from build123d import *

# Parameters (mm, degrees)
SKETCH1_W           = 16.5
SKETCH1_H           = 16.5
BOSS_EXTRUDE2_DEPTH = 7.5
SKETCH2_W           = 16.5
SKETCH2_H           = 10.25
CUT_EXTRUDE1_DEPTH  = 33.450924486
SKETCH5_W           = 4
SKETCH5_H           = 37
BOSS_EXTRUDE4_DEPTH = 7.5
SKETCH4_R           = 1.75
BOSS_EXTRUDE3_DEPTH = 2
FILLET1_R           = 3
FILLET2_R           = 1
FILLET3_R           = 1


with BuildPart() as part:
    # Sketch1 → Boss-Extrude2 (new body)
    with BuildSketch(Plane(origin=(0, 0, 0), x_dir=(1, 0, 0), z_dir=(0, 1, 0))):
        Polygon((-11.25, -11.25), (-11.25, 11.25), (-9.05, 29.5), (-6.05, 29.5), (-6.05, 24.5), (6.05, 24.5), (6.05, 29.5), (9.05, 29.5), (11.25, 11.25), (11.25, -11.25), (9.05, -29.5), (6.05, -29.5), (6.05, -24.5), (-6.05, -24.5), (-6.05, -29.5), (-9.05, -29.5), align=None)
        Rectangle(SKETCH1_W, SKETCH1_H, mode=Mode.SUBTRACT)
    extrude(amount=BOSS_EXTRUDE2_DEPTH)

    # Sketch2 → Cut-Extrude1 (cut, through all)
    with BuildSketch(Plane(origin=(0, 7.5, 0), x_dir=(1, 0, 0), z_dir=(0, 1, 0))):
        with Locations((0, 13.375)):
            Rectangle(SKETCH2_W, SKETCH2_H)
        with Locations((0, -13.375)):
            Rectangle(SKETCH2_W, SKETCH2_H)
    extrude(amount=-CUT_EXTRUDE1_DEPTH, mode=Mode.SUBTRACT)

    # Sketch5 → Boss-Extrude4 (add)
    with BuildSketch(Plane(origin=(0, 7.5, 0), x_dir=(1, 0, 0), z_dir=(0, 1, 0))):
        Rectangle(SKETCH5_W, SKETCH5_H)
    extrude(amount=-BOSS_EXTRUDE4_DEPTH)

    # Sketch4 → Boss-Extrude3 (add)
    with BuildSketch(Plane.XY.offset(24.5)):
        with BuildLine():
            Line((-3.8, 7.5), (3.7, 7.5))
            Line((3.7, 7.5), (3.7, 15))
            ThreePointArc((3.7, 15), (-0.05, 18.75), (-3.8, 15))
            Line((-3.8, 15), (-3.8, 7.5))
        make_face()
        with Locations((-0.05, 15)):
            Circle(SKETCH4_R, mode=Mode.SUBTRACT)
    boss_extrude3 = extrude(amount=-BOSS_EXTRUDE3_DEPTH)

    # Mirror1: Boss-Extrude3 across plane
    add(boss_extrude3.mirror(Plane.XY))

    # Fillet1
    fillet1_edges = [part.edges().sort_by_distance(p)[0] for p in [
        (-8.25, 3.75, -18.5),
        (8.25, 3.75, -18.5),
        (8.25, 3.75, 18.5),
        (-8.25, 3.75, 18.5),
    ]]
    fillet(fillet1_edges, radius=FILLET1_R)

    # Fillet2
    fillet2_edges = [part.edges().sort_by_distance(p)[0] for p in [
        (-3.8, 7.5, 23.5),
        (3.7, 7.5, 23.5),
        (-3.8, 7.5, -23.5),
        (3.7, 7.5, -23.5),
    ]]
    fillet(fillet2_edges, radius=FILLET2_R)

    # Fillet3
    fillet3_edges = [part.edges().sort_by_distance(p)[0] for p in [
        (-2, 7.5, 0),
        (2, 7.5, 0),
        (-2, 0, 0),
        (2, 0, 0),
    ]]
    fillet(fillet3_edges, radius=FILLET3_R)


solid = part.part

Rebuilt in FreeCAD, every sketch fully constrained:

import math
import FreeCAD as App
import Part
import Sketcher


def edges_at(feature, points):
    """Names of the edges that pass closest to the given points."""
    edges = feature.Shape.Edges
    near = lambda p: min(range(len(edges)), key=lambda i: edges[i].distToShape(Part.Vertex(*p))[0])
    return sorted({f"Edge{near(p) + 1}" for p in points})


def add_polygon(sketch, points):
    """Adds a closed chain of lines whose ends are joined by coincident constraints."""
    first, n = sketch.GeometryCount, len(points)
    for a, b in zip(points, points[1:] + points[:1]):
        sketch.addGeometry(Part.LineSegment(App.Vector(*a, 0), App.Vector(*b, 0)), False)
    for i in range(n):
        sketch.addConstraint(Sketcher.Constraint("Coincident", first + i, 2, first + (i + 1) % n, 1))

doc = App.newDocument("Part")
body = doc.addObject("PartDesign::Body", "Body")

# Sketch on XZ plane
sketch1 = body.newObject("Sketcher::SketchObject", "Sketch")
sketch1.AttachmentSupport = (doc.getObject("XZ_Plane"), [""])
sketch1.MapMode = "FlatFace"
add_polygon(sketch1, [(-11.25, -11.25), (-11.25, 11.25), (-9.05, 29.5), (-6.05, 29.5), (-6.05, 24.5), (6.05, 24.5), (6.05, 29.5), (9.05, 29.5), (11.25, 11.25), (11.25, -11.25), (9.05, -29.5), (6.05, -29.5), (6.05, -24.5), (-6.05, -24.5), (-6.05, -29.5), (-9.05, -29.5)])  # lines 0-15
add_polygon(sketch1, [(-8.25, 8.25), (-8.25, -8.25), (8.25, -8.25), (8.25, 8.25)])  # lines 16-19
sketch1.addConstraint(Sketcher.Constraint("Vertical", 0))
sketch1.addConstraint(Sketcher.Constraint("Horizontal", 2))
sketch1.addConstraint(Sketcher.Constraint("Vertical", 3))
sketch1.addConstraint(Sketcher.Constraint("Horizontal", 4))
sketch1.addConstraint(Sketcher.Constraint("Vertical", 5))
sketch1.addConstraint(Sketcher.Constraint("Horizontal", 6))
sketch1.addConstraint(Sketcher.Constraint("Vertical", 8))
sketch1.addConstraint(Sketcher.Constraint("Horizontal", 10))
sketch1.addConstraint(Sketcher.Constraint("Vertical", 11))
sketch1.addConstraint(Sketcher.Constraint("Horizontal", 12))
sketch1.addConstraint(Sketcher.Constraint("Vertical", 13))
sketch1.addConstraint(Sketcher.Constraint("Horizontal", 14))
sketch1.addConstraint(Sketcher.Constraint("Vertical", 16))
sketch1.addConstraint(Sketcher.Constraint("Horizontal", 17))
sketch1.addConstraint(Sketcher.Constraint("Vertical", 18))
sketch1.addConstraint(Sketcher.Constraint("Horizontal", 19))
sketch1.addConstraint(Sketcher.Constraint("Symmetric", 0, 2, 8, 2, -1, 1))
sketch1.addConstraint(Sketcher.Constraint("Symmetric", 1, 2, 9, 2, -1, 1))
sketch1.addConstraint(Sketcher.Constraint("Symmetric", 3, 2, 11, 2, -1, 1))
sketch1.addConstraint(Sketcher.Constraint("Symmetric", 5, 2, 13, 2, -1, 1))
sketch1.addConstraint(Sketcher.Constraint("Symmetric", 16, 2, 18, 2, -1, 1))
sketch1.addConstraint(Sketcher.Constraint("Symmetric", 2, 2, 5, 2, -2))
sketch1.addConstraint(Sketcher.Constraint("Parallel", 7, 15))
sketch1.addConstraint(Sketcher.Constraint("Horizontal", 0, 2, 7, 2))
sketch1.addConstraint(Sketcher.Constraint("Horizontal", 8, 2, 15, 2))
sketch1.addConstraint(Sketcher.Constraint("Vertical", 6, 2, 9, 2))
sketch1.addConstraint(Sketcher.Constraint("Equal", 19, 16))
sketch1.addConstraint(Sketcher.Constraint("DistanceX", 2, 1, 2, 2, 3.0))
sketch1.addConstraint(Sketcher.Constraint("DistanceY", 3, 2, 3, 1, 5.0))
sketch1.addConstraint(Sketcher.Constraint("DistanceX", 4, 1, 4, 2, 12.1))
sketch1.addConstraint(Sketcher.Constraint("DistanceX", 17, 1, 17, 2, 16.5))
sketch1.addConstraint(Sketcher.Constraint("DistanceY", 0, 1, 0, 2, 22.5))
sketch1.addConstraint(Sketcher.Constraint("DistanceY", 9, 2, 4, 2, 54.0))
sketch1.addConstraint(Sketcher.Constraint("DistanceX", 15, 2, 16, 2, 3.0))
pad1 = body.newObject("PartDesign::Pad", "Pad")
pad1.Profile = sketch1
pad1.Length = 7.5
pad1.Reversed = True

# Sketch on XZ plane
sketch2 = body.newObject("Sketcher::SketchObject", "Sketch001")
sketch2.AttachmentSupport = (doc.getObject("XZ_Plane"), [""])
sketch2.MapMode = "FlatFace"
sketch2.AttachmentOffset = App.Placement(App.Vector(0, 0, -7.5), App.Rotation())
add_polygon(sketch2, [(-8.25, -18.5), (-8.25, -8.25), (8.25, -8.25), (8.25, -18.5)])  # lines 0-3
add_polygon(sketch2, [(-8.25, 8.25), (-8.25, 18.5), (8.25, 18.5), (8.25, 8.25)])  # lines 4-7
sketch2.addConstraint(Sketcher.Constraint("Vertical", 0))
sketch2.addConstraint(Sketcher.Constraint("Horizontal", 1))
sketch2.addConstraint(Sketcher.Constraint("Vertical", 2))
sketch2.addConstraint(Sketcher.Constraint("Horizontal", 3))
sketch2.addConstraint(Sketcher.Constraint("Vertical", 4))
sketch2.addConstraint(Sketcher.Constraint("Horizontal", 5))
sketch2.addConstraint(Sketcher.Constraint("Vertical", 6))
sketch2.addConstraint(Sketcher.Constraint("Horizontal", 7))
sketch2.addConstraint(Sketcher.Constraint("Symmetric", 2, 2, 4, 2, -1, 1))
sketch2.addConstraint(Sketcher.Constraint("Symmetric", 0, 2, 6, 2, -1, 1))
sketch2.addConstraint(Sketcher.Constraint("Vertical", 3, 2, 4, 2))
sketch2.addConstraint(Sketcher.Constraint("DistanceX", 1, 1, 1, 2, 16.5))
sketch2.addConstraint(Sketcher.Constraint("DistanceY", 3, 2, 4, 2, 37.0))
sketch2.addConstraint(Sketcher.Constraint("DistanceY", 0, 1, 0, 2, 10.25))
pocket1 = body.newObject("PartDesign::Pocket", "Pocket")
pocket1.Profile = sketch2
pocket1.Type = "ThroughAll"
pocket1.Reversed = True

# Sketch on XZ plane
sketch3 = body.newObject("Sketcher::SketchObject", "Sketch002")
sketch3.AttachmentSupport = (doc.getObject("XZ_Plane"), [""])
sketch3.MapMode = "FlatFace"
sketch3.AttachmentOffset = App.Placement(App.Vector(0, 0, -7.5), App.Rotation())
add_polygon(sketch3, [(-2, -18.5), (-2, 18.5), (2, 18.5), (2, -18.5)])  # lines 0-3
sketch3.addConstraint(Sketcher.Constraint("Vertical", 0))
sketch3.addConstraint(Sketcher.Constraint("Horizontal", 1))
sketch3.addConstraint(Sketcher.Constraint("Vertical", 2))
sketch3.addConstraint(Sketcher.Constraint("Horizontal", 3))
sketch3.addConstraint(Sketcher.Constraint("Symmetric", 0, 2, 2, 2, -1, 1))
sketch3.addConstraint(Sketcher.Constraint("DistanceX", 1, 1, 1, 2, 4.0))
sketch3.addConstraint(Sketcher.Constraint("DistanceY", 0, 1, 0, 2, 37.0))
pad2 = body.newObject("PartDesign::Pad", "Pad001")
pad2.Profile = sketch3
pad2.Length = 7.5

# Sketch on XY plane
sketch4 = body.newObject("Sketcher::SketchObject", "Sketch003")
sketch4.AttachmentSupport = (doc.getObject("XY_Plane"), [""])
sketch4.MapMode = "FlatFace"
sketch4.AttachmentOffset = App.Placement(App.Vector(0, 0, 24.5), App.Rotation())
sketch4.addGeometry(Part.LineSegment(App.Vector(-3.8, 7.5, 0), App.Vector(3.7, 7.5, 0)), False)
sketch4.addGeometry(Part.LineSegment(App.Vector(3.7, 7.5, 0), App.Vector(3.7, 15, 0)), False)
sketch4.addGeometry(Part.ArcOfCircle(Part.Circle(App.Vector(-0.05, 15, 0), App.Vector(0, 0, 1), 3.75), math.radians(0), math.radians(180)), False)
sketch4.addGeometry(Part.LineSegment(App.Vector(-3.8, 15, 0), App.Vector(-3.8, 7.5, 0)), False)
sketch4.addGeometry(Part.Circle(App.Vector(-0.05, 15, 0), App.Vector(0, 0, 1), 1.75), False)
sketch4.addConstraint(Sketcher.Constraint("Coincident", 0, 2, 1, 1))
sketch4.addConstraint(Sketcher.Constraint("Tangent", 1, 2, 2, 1))
sketch4.addConstraint(Sketcher.Constraint("Tangent", 2, 2, 3, 1))
sketch4.addConstraint(Sketcher.Constraint("Coincident", 3, 2, 0, 1))
sketch4.addConstraint(Sketcher.Constraint("Horizontal", 0))
sketch4.addConstraint(Sketcher.Constraint("Vertical", 1))
sketch4.addConstraint(Sketcher.Constraint("Vertical", 3))
sketch4.addConstraint(Sketcher.Constraint("Coincident", 4, 3, 2, 3))
sketch4.addConstraint(Sketcher.Constraint("Equal", 0, 1))
sketch4.addConstraint(Sketcher.Constraint("Diameter", 4, 3.5))
sketch4.addConstraint(Sketcher.Constraint("Radius", 2, 3.75))
sketch4.addConstraint(Sketcher.Constraint("DistanceY", -1, 1, 2, 3, 15.0))
sketch4.addConstraint(Sketcher.Constraint("DistanceX", -1, 1, 0, 2, 3.7))
pad3 = body.newObject("PartDesign::Pad", "Pad002")
pad3.Profile = sketch4
pad3.Length = 2
pad3.Reversed = True
doc.recompute()

mirrored = body.newObject("PartDesign::Mirrored", "Mirrored")
mirrored.Originals = [pad3]
mirrored.MirrorPlane = (doc.getObject("XY_Plane"), [""])
body.Tip = mirrored
doc.recompute()

fillet = body.newObject("PartDesign::Fillet", "Fillet")
fillet.Base = (mirrored, edges_at(mirrored, [
    (-8.25, 3.75, -18.5),
    (8.25, 3.75, -18.5),
    (8.25, 3.75, 18.5),
    (-8.25, 3.75, 18.5),
]))
fillet.Radius = 3
doc.recompute()

fillet2 = body.newObject("PartDesign::Fillet", "Fillet001")
fillet2.Base = (fillet, edges_at(fillet, [
    (-3.8, 7.5, 23.5),
    (3.7, 7.5, 23.5),
    (-3.8, 7.5, -23.5),
    (3.7, 7.5, -23.5),
]))
fillet2.Radius = 1
doc.recompute()

fillet3 = body.newObject("PartDesign::Fillet", "Fillet002")
fillet3.Base = (fillet2, edges_at(fillet2, [
    (-2, 7.5, 0),
    (2, 7.5, 0),
    (-2, 0, 0),
    (2, 0, 0),
]))
fillet3.Radius = 1

doc.recompute()
